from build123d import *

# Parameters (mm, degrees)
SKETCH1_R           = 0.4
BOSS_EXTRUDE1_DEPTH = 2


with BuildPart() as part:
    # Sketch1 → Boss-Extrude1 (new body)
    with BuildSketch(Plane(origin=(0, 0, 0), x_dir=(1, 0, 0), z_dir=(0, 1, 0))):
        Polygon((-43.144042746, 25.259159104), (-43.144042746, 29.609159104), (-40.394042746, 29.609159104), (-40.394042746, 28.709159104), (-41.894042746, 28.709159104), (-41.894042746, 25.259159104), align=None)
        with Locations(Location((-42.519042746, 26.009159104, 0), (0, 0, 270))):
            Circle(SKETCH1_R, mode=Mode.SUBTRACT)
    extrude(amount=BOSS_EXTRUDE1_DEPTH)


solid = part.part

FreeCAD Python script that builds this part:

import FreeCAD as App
import Part
import Sketcher
from FreeCAD import Vector


def add_polygon(sketch, points):
    """Adds a closed chain of lines whose ends are joined by coincident constraints."""
    first, n = sketch.GeometryCount, len(points)
    for a, b in zip(points, points[1:] + points[:1]):
        sketch.addGeometry(Part.LineSegment(App.Vector(*a, 0), App.Vector(*b, 0)), False)
    for i in range(n):
        sketch.addConstraint(Sketcher.Constraint("Coincident", first + i, 2, first + (i + 1) % n, 1))

doc = App.newDocument("Part")
body = doc.addObject("PartDesign::Body", "Body")

# Sketch on XZ plane
sketch1 = body.newObject("Sketcher::SketchObject", "Sketch")
sketch1.AttachmentSupport = (doc.getObject("XZ_Plane"), [""])
sketch1.MapMode = "FlatFace"
add_polygon(sketch1, [(-43.144043, -29.609159), (-43.144043, -25.259159), (-41.894043, -25.259159), (-41.894043, -28.709159), (-40.394043, -28.709159), (-40.394043, -29.609159)])  # lines 0-5
sketch1.addGeometry(Part.Circle(Vector(-42.519043, -26.009159, 0), Vector(0, 0, 1), 0.4), False)  # 6
sketch1.addConstraint([
    Sketcher.Constraint("Vertical", 0),
    Sketcher.Constraint("Horizontal", 1),
    Sketcher.Constraint("Vertical", 2),
    Sketcher.Constraint("Horizontal", 3),
    Sketcher.Constraint("Vertical", 4),
    Sketcher.Constraint("Horizontal", 5),
    Sketcher.Constraint("Diameter", 6, 0.8),
    Sketcher.Constraint("DistanceX", 3, 1, 3, 2, 1.5),
    Sketcher.Constraint("DistanceY", 4, 2, 4, 1, 0.9),
    Sketcher.Constraint("DistanceX", 1, 1, 1, 2, 1.25),
    Sketcher.Constraint("DistanceY", 0, 1, 0, 2, 4.35),
    Sketcher.Constraint("DistanceY", 2, 2, 6, 3, 2.7),
    Sketcher.Constraint("DistanceX", 0, 2, 6, 3, 0.625),
    Sketcher.Constraint("DistanceY", 6, 3, -1, 1, 26.009159),
    Sketcher.Constraint("DistanceX", 6, 3, -1, 1, 42.519043),
])
pad1 = body.newObject("PartDesign::Pad", "Pad")
pad1.Profile = sketch1
pad1.Length = 2
pad1.Reversed = True

doc.recompute()
